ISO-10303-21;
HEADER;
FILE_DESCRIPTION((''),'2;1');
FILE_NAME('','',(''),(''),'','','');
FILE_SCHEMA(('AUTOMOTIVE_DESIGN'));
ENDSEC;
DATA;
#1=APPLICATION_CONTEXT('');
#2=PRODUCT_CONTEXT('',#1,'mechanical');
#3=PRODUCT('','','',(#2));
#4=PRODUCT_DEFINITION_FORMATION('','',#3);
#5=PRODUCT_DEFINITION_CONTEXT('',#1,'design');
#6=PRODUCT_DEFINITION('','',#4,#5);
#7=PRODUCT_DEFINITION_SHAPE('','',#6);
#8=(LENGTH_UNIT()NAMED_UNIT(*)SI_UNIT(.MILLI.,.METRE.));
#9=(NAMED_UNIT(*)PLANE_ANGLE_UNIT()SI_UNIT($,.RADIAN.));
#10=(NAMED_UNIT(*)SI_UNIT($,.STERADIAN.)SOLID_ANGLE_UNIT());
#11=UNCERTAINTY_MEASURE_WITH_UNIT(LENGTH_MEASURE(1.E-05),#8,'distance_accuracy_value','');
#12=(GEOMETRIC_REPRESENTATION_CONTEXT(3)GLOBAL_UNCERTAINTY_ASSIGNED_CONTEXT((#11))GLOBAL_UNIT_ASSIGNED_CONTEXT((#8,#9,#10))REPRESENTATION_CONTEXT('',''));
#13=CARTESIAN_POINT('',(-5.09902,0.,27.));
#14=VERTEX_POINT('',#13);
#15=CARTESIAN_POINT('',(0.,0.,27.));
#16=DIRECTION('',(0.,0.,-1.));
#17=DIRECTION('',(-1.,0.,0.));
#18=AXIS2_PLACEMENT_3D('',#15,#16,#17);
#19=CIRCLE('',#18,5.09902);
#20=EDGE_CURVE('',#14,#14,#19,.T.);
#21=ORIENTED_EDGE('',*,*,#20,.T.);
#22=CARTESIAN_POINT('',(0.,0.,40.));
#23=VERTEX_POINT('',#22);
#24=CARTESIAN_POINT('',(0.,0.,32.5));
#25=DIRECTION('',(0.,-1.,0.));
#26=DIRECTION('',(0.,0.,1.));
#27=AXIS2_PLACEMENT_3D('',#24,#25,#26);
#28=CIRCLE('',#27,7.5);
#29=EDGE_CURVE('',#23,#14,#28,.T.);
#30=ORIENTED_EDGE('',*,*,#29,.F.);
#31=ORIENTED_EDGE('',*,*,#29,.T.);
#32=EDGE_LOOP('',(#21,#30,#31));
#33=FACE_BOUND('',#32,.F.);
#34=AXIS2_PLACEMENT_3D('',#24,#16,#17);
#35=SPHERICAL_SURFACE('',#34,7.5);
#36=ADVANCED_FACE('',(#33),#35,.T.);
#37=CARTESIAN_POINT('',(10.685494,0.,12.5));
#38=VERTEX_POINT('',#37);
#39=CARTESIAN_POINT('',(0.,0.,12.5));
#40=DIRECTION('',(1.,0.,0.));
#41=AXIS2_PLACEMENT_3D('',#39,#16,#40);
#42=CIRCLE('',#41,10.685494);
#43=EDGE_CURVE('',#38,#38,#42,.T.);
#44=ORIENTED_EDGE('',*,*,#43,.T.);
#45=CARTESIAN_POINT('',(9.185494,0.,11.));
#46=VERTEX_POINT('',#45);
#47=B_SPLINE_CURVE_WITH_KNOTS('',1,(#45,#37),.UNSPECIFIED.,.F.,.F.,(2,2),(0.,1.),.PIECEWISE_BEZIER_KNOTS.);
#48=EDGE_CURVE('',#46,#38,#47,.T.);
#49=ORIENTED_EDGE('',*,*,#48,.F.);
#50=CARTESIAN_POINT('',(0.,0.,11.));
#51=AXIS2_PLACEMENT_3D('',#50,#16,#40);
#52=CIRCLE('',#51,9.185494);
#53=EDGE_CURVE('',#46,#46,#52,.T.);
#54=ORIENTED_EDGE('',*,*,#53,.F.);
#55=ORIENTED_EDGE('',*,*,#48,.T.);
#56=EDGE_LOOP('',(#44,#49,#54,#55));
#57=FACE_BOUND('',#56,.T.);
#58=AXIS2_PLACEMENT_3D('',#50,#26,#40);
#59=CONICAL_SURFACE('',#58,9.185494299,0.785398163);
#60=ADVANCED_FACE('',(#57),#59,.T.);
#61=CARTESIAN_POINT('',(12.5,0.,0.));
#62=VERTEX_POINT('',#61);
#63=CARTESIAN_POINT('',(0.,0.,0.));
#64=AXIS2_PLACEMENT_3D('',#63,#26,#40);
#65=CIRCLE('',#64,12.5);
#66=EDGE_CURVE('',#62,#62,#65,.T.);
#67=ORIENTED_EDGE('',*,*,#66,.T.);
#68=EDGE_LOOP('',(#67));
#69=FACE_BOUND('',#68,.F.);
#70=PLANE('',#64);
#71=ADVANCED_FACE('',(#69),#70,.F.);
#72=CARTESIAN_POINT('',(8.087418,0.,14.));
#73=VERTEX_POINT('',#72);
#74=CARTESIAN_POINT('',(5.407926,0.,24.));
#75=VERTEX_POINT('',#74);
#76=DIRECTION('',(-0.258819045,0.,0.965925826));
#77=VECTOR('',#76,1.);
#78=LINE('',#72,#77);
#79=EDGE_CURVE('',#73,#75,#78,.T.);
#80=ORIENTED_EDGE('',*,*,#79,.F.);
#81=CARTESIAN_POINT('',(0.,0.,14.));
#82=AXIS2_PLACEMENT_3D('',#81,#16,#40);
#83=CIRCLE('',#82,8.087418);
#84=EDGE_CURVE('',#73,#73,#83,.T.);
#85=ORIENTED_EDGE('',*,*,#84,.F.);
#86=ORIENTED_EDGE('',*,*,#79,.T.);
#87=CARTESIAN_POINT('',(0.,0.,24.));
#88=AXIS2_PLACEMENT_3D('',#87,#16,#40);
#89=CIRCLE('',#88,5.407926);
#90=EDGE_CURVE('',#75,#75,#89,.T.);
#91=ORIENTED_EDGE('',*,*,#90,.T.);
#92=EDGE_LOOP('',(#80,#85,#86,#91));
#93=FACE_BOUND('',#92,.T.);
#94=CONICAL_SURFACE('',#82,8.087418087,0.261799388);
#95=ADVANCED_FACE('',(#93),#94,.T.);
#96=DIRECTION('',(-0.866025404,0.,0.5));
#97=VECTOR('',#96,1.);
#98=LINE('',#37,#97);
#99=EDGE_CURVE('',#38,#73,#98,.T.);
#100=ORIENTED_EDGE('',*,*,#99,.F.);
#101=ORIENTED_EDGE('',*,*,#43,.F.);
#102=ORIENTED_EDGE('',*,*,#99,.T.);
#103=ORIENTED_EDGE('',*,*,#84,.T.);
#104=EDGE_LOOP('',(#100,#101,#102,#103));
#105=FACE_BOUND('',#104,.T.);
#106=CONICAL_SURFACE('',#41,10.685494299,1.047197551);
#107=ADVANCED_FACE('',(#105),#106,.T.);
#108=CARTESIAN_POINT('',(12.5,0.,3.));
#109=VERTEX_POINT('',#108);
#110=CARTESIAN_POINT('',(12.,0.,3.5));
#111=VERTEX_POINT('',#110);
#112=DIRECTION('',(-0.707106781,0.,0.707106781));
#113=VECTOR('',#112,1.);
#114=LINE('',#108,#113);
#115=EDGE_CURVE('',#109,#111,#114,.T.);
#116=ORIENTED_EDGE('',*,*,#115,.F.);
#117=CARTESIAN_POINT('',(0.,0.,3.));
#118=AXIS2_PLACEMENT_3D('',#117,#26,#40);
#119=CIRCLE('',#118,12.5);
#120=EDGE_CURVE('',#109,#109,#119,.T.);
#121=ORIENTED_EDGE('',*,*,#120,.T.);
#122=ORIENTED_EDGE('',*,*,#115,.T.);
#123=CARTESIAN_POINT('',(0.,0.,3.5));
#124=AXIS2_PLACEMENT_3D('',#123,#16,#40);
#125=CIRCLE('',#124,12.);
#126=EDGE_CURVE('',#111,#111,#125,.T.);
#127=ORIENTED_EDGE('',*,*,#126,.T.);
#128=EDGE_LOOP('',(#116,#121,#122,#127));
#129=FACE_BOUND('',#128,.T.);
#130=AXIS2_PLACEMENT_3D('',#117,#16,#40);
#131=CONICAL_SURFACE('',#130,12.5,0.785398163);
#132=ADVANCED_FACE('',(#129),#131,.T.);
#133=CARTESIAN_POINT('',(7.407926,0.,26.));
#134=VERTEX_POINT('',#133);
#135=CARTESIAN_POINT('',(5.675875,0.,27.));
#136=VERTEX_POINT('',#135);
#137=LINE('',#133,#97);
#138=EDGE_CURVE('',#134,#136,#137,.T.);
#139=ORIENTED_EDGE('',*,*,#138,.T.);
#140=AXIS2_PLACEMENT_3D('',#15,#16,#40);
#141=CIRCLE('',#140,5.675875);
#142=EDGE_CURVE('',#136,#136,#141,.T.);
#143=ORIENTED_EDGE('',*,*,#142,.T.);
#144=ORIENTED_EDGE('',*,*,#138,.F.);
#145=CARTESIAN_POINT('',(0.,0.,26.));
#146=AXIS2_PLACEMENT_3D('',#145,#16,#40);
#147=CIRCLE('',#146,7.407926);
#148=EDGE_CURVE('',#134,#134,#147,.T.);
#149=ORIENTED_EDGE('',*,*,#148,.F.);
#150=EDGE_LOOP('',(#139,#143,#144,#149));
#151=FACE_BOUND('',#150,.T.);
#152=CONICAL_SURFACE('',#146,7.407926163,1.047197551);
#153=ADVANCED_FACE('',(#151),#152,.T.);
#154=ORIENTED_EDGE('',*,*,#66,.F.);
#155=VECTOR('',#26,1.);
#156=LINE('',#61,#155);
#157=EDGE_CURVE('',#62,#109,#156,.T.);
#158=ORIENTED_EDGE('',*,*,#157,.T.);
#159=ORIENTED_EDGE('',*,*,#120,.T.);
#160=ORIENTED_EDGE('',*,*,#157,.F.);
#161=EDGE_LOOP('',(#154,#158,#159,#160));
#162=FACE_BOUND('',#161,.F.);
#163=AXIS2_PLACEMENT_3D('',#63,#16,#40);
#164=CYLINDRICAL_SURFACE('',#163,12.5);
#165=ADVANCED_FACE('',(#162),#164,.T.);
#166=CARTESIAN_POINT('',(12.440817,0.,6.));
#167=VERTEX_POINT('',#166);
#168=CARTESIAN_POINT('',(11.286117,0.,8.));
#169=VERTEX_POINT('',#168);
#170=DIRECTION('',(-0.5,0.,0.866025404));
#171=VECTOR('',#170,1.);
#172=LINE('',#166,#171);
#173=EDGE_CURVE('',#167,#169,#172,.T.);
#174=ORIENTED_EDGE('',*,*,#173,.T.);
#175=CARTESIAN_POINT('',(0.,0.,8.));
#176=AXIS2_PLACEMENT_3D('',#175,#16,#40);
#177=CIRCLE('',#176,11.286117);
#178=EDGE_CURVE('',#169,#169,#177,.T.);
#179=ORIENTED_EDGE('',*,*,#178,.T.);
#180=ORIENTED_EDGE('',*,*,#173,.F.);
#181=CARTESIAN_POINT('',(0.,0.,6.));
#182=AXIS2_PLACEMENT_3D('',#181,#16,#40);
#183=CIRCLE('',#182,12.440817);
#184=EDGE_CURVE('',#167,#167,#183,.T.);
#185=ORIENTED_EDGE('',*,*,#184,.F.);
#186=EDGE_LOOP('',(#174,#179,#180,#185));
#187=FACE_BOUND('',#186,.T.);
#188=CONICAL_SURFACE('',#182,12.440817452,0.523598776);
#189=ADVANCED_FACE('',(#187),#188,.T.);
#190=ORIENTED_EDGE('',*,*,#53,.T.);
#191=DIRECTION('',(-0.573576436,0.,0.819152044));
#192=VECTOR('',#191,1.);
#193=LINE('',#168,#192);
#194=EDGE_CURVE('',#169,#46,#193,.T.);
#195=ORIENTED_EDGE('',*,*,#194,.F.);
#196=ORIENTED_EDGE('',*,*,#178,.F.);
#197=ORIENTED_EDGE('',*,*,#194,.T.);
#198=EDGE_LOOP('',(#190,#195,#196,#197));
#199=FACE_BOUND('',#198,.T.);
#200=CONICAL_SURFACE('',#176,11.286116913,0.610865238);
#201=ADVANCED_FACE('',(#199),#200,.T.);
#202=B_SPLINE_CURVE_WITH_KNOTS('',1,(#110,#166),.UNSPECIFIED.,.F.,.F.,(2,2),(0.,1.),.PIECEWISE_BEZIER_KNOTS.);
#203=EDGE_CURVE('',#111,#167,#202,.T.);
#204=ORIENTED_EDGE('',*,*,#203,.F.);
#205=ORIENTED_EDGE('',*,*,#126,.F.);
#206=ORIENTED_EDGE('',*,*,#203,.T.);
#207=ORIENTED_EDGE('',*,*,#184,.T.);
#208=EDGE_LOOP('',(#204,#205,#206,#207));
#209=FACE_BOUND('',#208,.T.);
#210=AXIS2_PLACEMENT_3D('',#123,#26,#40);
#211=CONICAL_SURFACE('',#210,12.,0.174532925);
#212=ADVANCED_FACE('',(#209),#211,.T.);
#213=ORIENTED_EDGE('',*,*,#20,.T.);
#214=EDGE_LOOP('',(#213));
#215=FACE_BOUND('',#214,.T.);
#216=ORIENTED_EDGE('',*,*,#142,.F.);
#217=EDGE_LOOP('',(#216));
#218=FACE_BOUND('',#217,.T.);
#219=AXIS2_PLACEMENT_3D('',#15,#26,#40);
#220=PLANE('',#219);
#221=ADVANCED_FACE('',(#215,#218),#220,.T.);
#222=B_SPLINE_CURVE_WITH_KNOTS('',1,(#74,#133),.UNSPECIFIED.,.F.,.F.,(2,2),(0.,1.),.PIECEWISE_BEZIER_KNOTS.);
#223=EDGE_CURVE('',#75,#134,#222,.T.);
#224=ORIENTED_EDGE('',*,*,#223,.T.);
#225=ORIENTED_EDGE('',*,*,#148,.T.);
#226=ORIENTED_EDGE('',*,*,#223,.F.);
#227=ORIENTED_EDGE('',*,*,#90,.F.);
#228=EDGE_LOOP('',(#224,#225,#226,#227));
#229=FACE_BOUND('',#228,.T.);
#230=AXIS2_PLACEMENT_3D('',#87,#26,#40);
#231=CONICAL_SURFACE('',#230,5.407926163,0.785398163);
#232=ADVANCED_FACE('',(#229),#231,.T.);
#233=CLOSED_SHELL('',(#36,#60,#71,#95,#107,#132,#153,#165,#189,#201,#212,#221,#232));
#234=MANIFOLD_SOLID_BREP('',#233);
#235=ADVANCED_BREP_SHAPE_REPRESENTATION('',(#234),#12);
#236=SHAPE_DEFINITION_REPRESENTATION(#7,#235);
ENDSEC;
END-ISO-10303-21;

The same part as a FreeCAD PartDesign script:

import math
import FreeCAD as App
import Part
import Sketcher

V = App.Vector
Q = App.Units.Quantity

doc = App.newDocument("Part")
body = doc.addObject("PartDesign::Body", "Body")

sketch1 = doc.addObject("Sketcher::SketchObject", "Sketch")
body.addObject(sketch1)
sketch1.AttachmentSupport = (doc.XY_Plane, [""])
sketch1.MapMode = "FlatFace"
sketch1.addGeometry(Part.Circle(V(0, 0, 0), V(0, 0, 1), 12.5), False)
sketch1.addConstraint(Sketcher.Constraint("Coincident", 0, 3, -1, 1))
sketch1.addConstraint(Sketcher.Constraint("Diameter", 0, Q("25 mm")))
pad1 = doc.addObject("PartDesign::Pad", "Pad")
body.addObject(pad1)
pad1.Profile = sketch1
pad1.Length = 3

sketch2 = doc.addObject("Sketcher::SketchObject", "Sketch001")
body.addObject(sketch2)
sketch2.AttachmentSupport = (doc.XY_Plane, [""])
sketch2.MapMode = "FlatFace"
sketch2.AttachmentOffset = App.Placement(V(0, 0, 3), App.Rotation())
sketch2.addGeometry(Part.Circle(V(0, 0, 0), V(0, 0, 1), 12.5), False)
sketch2.addConstraint(Sketcher.Constraint("Coincident", 0, 3, -1, 1))
sketch2.addConstraint(Sketcher.Constraint("Diameter", 0, Q("25 mm")))
pad2 = doc.addObject("PartDesign::Pad", "Pad001")
body.addObject(pad2)
pad2.Profile = sketch2
pad2.Length = 0.5
pad2.TaperAngle = -45

sketch3 = doc.addObject("Sketcher::SketchObject", "Sketch002")
body.addObject(sketch3)
sketch3.AttachmentSupport = (doc.XY_Plane, [""])
sketch3.MapMode = "FlatFace"
sketch3.AttachmentOffset = App.Placement(V(0, 0, 3.5), App.Rotation())
sketch3.addGeometry(Part.Circle(V(0, 0, 0), V(0, 0, 1), 12), False)
sketch3.addConstraint(Sketcher.Constraint("Coincident", 0, 3, -1, 1))
sketch3.addConstraint(Sketcher.Constraint("Diameter", 0, Q("24 mm")))
pad3 = doc.addObject("PartDesign::Pad", "Pad002")
body.addObject(pad3)
pad3.Profile = sketch3
pad3.Length = 2.5
pad3.TaperAngle = 10

sketch4 = doc.addObject("Sketcher::SketchObject", "Sketch003")
body.addObject(sketch4)
sketch4.AttachmentSupport = (doc.XY_Plane, [""])
sketch4.MapMode = "FlatFace"
sketch4.AttachmentOffset = App.Placement(V(0, 0, 6), App.Rotation())
sketch4.addGeometry(Part.Circle(V(0, 0, 0), V(0, 0, 1), 12.440817), False)
sketch4.addConstraint(Sketcher.Constraint("Coincident", 0, 3, -1, 1))
sketch4.addConstraint(Sketcher.Constraint("Diameter", 0, Q("24.881635 mm")))
pad4 = doc.addObject("PartDesign::Pad", "Pad003")
body.addObject(pad4)
pad4.Profile = sketch4
pad4.Length = 2
pad4.TaperAngle = -30

sketch5 = doc.addObject("Sketcher::SketchObject", "Sketch004")
body.addObject(sketch5)
sketch5.AttachmentSupport = (doc.XY_Plane, [""])
sketch5.MapMode = "FlatFace"
sketch5.AttachmentOffset = App.Placement(V(0, 0, 8), App.Rotation())
sketch5.addGeometry(Part.Circle(V(0, 0, 0), V(0, 0, 1), 11.286117), False)
sketch5.addConstraint(Sketcher.Constraint("Coincident", 0, 3, -1, 1))
sketch5.addConstraint(Sketcher.Constraint("Diameter", 0, Q("22.572234 mm")))
pad5 = doc.addObject("PartDesign::Pad", "Pad004")
body.addObject(pad5)
pad5.Profile = sketch5
pad5.Length = 3
pad5.TaperAngle = -35

sketch6 = doc.addObject("Sketcher::SketchObject", "Sketch005")
body.addObject(sketch6)
sketch6.AttachmentSupport = (doc.XY_Plane, [""])
sketch6.MapMode = "FlatFace"
sketch6.AttachmentOffset = App.Placement(V(0, 0, 11), App.Rotation())
sketch6.addGeometry(Part.Circle(V(0, 0, 0), V(0, 0, 1), 9.185494), False)
sketch6.addConstraint(Sketcher.Constraint("Coincident", 0, 3, -1, 1))
sketch6.addConstraint(Sketcher.Constraint("Diameter", 0, Q("18.370989 mm")))
pad6 = doc.addObject("PartDesign::Pad", "Pad005")
body.addObject(pad6)
pad6.Profile = sketch6
pad6.Length = 1.5
pad6.TaperAngle = 45

sketch7 = doc.addObject("Sketcher::SketchObject", "Sketch006")
body.addObject(sketch7)
sketch7.AttachmentSupport = (doc.XY_Plane, [""])
sketch7.MapMode = "FlatFace"
sketch7.AttachmentOffset = App.Placement(V(0, 0, 12.5), App.Rotation())
sketch7.addGeometry(Part.Circle(V(0, 0, 0), V(0, 0, 1), 10.685494), False)
sketch7.addConstraint(Sketcher.Constraint("Coincident", 0, 3, -1, 1))
sketch7.addConstraint(Sketcher.Constraint("Diameter", 0, Q("21.370989 mm")))
pad7 = doc.addObject("PartDesign::Pad", "Pad006")
body.addObject(pad7)
pad7.Profile = sketch7
pad7.Length = 1.5
pad7.TaperAngle = -60

sketch8 = doc.addObject("Sketcher::SketchObject", "Sketch007")
body.addObject(sketch8)
sketch8.AttachmentSupport = (doc.XY_Plane, [""])
sketch8.MapMode = "FlatFace"
sketch8.AttachmentOffset = App.Placement(V(0, 0, 14), App.Rotation())
sketch8.addGeometry(Part.Circle(V(0, 0, 0), V(0, 0, 1), 8.087418), False)
sketch8.addConstraint(Sketcher.Constraint("Coincident", 0, 3, -1, 1))
sketch8.addConstraint(Sketcher.Constraint("Diameter", 0, Q("16.174836 mm")))
pad8 = doc.addObject("PartDesign::Pad", "Pad007")
body.addObject(pad8)
pad8.Profile = sketch8
pad8.Length = 10
pad8.TaperAngle = -15

sketch9 = doc.addObject("Sketcher::SketchObject", "Sketch008")
body.addObject(sketch9)
sketch9.AttachmentSupport = (doc.XY_Plane, [""])
sketch9.MapMode = "FlatFace"
sketch9.AttachmentOffset = App.Placement(V(0, 0, 24), App.Rotation())
sketch9.addGeometry(Part.Circle(V(0, 0, 0), V(0, 0, 1), 5.407926), False)
sketch9.addConstraint(Sketcher.Constraint("Coincident", 0, 3, -1, 1))
sketch9.addConstraint(Sketcher.Constraint("Diameter", 0, Q("10.815852 mm")))
pad9 = doc.addObject("PartDesign::Pad", "Pad008")
body.addObject(pad9)
pad9.Profile = sketch9
pad9.Length = 2
pad9.TaperAngle = 45

sketch10 = doc.addObject("Sketcher::SketchObject", "Sketch009")
body.addObject(sketch10)
sketch10.AttachmentSupport = (doc.XY_Plane, [""])
sketch10.MapMode = "FlatFace"
sketch10.AttachmentOffset = App.Placement(V(0, 0, 26), App.Rotation())
sketch10.addGeometry(Part.Circle(V(0, 0, 0), V(0, 0, 1), 7.407926), False)
sketch10.addConstraint(Sketcher.Constraint("Coincident", 0, 3, -1, 1))
sketch10.addConstraint(Sketcher.Constraint("Diameter", 0, Q("14.815852 mm")))
pad10 = doc.addObject("PartDesign::Pad", "Pad009")
body.addObject(pad10)
pad10.Profile = sketch10
pad10.Length = 1
pad10.TaperAngle = -60

sketch11 = doc.addObject("Sketcher::SketchObject", "Sketch010")
body.addObject(sketch11)
sketch11.AttachmentSupport = (doc.XZ_Plane, [""])
sketch11.MapMode = "FlatFace"
sketch11.addGeometry(Part.ArcOfCircle(Part.Circle(V(0, 32.5, 0), V(0, 0, 1), 7.5), math.radians(90), math.radians(270)), False)
sketch11.addGeometry(Part.LineSegment(V(0, 25, 0), V(0, 40, 0)), False)
sketch11.addConstraint(Sketcher.Constraint("Coincident", 0, 1, 1, 2))
sketch11.addConstraint(Sketcher.Constraint("Coincident", 1, 1, 0, 2))
sketch11.addConstraint(Sketcher.Constraint("Vertical", 1))
sketch11.addConstraint(Sketcher.Constraint("PointOnObject", 0, 3, -2))
sketch11.addConstraint(Sketcher.Constraint("PointOnObject", 0, 1, -2))
sketch11.addConstraint(Sketcher.Constraint("Radius", 0, Q("7.5 mm")))
sketch11.addConstraint(Sketcher.Constraint("DistanceY", -1, 1, 0, 1, Q("40 mm")))
revolution = doc.addObject("PartDesign::Revolution", "Revolution")
body.addObject(revolution)
revolution.Profile = sketch11
revolution.ReferenceAxis = (sketch11, ["V_Axis"])
revolution.Angle = 360

doc.recompute()
